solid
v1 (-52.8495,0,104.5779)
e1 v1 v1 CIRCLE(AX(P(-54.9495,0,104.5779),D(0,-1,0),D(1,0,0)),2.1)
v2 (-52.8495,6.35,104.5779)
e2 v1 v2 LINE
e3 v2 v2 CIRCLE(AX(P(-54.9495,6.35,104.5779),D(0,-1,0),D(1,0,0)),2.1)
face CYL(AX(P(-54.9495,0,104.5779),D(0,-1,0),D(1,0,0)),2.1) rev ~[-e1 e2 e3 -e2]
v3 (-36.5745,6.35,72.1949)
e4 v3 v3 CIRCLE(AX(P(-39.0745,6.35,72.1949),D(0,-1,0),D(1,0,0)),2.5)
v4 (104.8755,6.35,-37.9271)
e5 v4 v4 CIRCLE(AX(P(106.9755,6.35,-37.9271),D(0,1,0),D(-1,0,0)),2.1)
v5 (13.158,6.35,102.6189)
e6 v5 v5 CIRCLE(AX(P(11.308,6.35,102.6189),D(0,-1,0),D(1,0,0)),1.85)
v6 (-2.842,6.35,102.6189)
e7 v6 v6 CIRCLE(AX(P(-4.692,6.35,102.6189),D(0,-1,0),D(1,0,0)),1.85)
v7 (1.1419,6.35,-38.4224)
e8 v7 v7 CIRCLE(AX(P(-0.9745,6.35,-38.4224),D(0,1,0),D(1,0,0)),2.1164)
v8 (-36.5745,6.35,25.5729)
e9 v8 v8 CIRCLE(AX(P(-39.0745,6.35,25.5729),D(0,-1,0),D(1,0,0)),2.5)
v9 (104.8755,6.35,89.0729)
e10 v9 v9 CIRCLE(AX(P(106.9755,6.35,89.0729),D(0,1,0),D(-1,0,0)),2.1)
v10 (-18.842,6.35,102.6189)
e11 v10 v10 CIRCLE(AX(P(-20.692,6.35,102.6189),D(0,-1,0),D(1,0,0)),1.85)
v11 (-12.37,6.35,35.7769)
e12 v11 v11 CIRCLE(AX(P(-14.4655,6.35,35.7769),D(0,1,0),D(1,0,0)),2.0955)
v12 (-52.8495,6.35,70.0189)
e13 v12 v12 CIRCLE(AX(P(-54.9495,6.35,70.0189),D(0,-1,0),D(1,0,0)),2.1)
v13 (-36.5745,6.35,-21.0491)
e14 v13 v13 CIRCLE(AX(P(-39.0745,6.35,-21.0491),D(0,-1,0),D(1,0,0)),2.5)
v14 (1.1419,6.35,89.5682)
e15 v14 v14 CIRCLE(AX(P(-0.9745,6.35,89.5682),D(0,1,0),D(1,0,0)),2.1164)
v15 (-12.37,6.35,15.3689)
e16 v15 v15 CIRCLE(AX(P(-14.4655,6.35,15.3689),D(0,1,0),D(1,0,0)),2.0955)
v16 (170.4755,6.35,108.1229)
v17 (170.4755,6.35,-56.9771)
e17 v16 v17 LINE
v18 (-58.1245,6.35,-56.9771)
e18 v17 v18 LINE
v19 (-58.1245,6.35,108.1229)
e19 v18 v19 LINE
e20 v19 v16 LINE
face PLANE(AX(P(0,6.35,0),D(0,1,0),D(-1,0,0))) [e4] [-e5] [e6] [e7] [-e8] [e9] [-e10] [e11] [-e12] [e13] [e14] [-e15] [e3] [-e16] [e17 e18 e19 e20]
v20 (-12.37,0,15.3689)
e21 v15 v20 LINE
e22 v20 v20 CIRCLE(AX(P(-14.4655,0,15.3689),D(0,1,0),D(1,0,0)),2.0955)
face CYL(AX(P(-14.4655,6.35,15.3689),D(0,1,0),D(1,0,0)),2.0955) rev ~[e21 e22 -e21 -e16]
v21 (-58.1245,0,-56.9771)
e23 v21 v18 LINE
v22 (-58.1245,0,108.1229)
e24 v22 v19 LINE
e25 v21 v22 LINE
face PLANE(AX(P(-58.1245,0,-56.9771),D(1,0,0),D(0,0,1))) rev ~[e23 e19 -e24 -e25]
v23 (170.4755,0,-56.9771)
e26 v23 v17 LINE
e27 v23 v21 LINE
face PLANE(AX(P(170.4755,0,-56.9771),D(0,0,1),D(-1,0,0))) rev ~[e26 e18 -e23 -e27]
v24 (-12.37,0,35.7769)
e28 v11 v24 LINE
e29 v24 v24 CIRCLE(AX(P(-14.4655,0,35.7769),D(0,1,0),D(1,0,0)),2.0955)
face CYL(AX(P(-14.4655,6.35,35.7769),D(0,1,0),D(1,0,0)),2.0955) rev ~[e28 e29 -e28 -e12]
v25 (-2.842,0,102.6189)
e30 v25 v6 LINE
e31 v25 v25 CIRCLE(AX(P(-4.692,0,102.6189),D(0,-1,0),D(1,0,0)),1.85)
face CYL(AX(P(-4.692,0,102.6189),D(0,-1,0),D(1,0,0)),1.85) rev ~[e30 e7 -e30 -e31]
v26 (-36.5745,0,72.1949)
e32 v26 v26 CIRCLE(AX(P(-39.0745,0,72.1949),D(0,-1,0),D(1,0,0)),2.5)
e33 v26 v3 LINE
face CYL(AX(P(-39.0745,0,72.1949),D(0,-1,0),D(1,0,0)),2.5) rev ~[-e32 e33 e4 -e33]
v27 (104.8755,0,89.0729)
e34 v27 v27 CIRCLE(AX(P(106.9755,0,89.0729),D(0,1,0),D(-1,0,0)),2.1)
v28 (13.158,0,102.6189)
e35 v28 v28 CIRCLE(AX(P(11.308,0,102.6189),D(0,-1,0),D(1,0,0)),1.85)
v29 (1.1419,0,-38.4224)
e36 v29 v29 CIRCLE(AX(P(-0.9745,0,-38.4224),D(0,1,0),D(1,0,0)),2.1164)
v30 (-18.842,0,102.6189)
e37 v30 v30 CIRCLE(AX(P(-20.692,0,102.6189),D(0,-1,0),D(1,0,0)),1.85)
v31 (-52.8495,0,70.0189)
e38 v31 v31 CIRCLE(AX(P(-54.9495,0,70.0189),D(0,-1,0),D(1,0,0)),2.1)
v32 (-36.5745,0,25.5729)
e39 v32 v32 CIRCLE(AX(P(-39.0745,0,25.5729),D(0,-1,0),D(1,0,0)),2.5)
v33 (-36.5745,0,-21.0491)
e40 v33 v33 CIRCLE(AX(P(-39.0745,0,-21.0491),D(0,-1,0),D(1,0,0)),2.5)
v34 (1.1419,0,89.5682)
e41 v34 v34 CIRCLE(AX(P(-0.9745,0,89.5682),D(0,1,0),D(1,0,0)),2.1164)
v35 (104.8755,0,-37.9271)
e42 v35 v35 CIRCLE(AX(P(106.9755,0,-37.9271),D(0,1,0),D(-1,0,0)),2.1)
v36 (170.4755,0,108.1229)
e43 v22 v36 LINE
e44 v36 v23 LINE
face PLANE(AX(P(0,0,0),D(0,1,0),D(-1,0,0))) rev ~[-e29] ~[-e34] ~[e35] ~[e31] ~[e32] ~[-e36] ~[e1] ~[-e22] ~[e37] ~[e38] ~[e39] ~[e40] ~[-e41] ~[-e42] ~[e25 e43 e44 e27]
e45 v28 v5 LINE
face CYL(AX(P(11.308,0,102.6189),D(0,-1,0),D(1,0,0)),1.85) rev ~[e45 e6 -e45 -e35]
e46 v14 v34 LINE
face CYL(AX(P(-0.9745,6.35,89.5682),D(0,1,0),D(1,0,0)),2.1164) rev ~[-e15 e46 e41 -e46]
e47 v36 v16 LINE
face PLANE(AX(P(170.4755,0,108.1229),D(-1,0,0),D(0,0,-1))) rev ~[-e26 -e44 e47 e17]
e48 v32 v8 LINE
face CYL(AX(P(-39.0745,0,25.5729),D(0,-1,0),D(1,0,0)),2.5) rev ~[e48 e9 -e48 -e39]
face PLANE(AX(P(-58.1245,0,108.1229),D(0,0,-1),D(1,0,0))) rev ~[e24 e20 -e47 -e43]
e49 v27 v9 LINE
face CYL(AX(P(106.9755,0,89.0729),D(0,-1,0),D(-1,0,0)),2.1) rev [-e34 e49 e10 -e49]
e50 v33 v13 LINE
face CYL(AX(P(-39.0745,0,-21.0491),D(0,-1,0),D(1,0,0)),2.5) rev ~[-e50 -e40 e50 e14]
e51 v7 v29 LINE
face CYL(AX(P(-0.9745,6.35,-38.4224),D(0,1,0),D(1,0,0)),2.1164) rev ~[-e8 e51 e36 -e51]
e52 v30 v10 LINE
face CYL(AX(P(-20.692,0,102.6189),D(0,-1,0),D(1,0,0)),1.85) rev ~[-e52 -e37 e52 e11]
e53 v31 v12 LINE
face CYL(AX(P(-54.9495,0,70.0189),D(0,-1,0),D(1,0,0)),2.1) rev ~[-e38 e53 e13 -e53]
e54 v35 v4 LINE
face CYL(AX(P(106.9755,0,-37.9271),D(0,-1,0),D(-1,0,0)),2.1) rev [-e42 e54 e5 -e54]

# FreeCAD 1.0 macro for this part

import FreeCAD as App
import Part
import Sketcher
Q = App.Units.Quantity


def add_polygon(sketch, points):
    """Adds a closed chain of lines whose ends are joined by coincident constraints."""
    first, n = sketch.GeometryCount, len(points)
    for a, b in zip(points, points[1:] + points[:1]):
        sketch.addGeometry(Part.LineSegment(App.Vector(*a, 0), App.Vector(*b, 0)), False)
    for i in range(n):
        sketch.addConstraint(Sketcher.Constraint("Coincident", first + i, 2, first + (i + 1) % n, 1))

doc = App.newDocument("Part")
body = doc.addObject("PartDesign::Body", "Body")

# Sketch on XZ plane
sketch1 = doc.addObject("Sketcher::SketchObject", "Sketch")
body.addObject(sketch1)
sketch1.AttachmentSupport = (doc.XZ_Plane, [""])
sketch1.MapMode = "FlatFace"
add_polygon(sketch1, [(-58.1245, -56.9771), (-58.1245, 108.1229), (170.4755, 108.1229), (170.4755, -56.9771)])  # lines 0-3
sketch1.addGeometry(Part.Circle(App.Vector(106.9755, -37.9271, 0), App.Vector(0, 0, 1), 2.1), False)  # 4
sketch1.addGeometry(Part.Circle(App.Vector(106.9755, 89.0729, 0), App.Vector(0, 0, 1), 2.1), False)  # 5
sketch1.addConstraint(Sketcher.Constraint("Vertical", 0))
sketch1.addConstraint(Sketcher.Constraint("Horizontal", 1))
sketch1.addConstraint(Sketcher.Constraint("Vertical", 2))
sketch1.addConstraint(Sketcher.Constraint("Horizontal", 3))
sketch1.addConstraint(Sketcher.Constraint("Equal", 4, 5))
sketch1.addConstraint(Sketcher.Constraint("Vertical", 4, 3, 5, 3))
sketch1.addConstraint(Sketcher.Constraint("DistanceX", 1, 1, 1, 2, Q("9 in")))
sketch1.addConstraint(Sketcher.Constraint("DistanceY", 0, 1, 0, 2, Q("6.5 in")))
sketch1.addConstraint(Sketcher.Constraint("DistanceY", 4, 3, 5, 3, Q("5 in")))
sketch1.addConstraint(Sketcher.Constraint("DistanceX", 0, 2, 5, 3, Q("6.5 in")))
sketch1.addConstraint(Sketcher.Constraint("Diameter", 4, Q("4.2 mm")))
sketch1.addConstraint(Sketcher.Constraint("DistanceY", 5, 3, 0, 2, Q("0.75 in")))
sketch1.addConstraint(Sketcher.Constraint("DistanceY", 4, 3, -1, 1, Q("1.4932 in")))
sketch1.addConstraint(Sketcher.Constraint("DistanceX", -1, 1, 4, 3, Q("106.9755 mm")))
pad1 = doc.addObject("PartDesign::Pad", "Pad")
body.addObject(pad1)
pad1.Profile = sketch1
pad1.Length = Q("0.25 in")
pad1.Reversed = True

# Sketch on XZ plane
sketch2 = doc.addObject("Sketcher::SketchObject", "Sketch001")
body.addObject(sketch2)
sketch2.AttachmentSupport = (doc.XZ_Plane, [""])
sketch2.MapMode = "FlatFace"
sketch2.AttachmentOffset = App.Placement(App.Vector(0, 0, -0.25 * 25.4), App.Rotation())
sketch2.addGeometry(Part.Circle(App.Vector(-0.9745, 89.5682, 0), App.Vector(0, 0, 1), 2.1164), False)
sketch2.addGeometry(Part.Circle(App.Vector(-0.9745, -38.4224, 0), App.Vector(0, 0, 1), 2.1164), False)
sketch2.addConstraint(Sketcher.Constraint("Equal", 0, 1))
sketch2.addConstraint(Sketcher.Constraint("Vertical", 0, 3, 1, 3))
sketch2.addConstraint(Sketcher.Constraint("DistanceY", 1, 3, 0, 3, Q("5.039 in")))
sketch2.addConstraint(Sketcher.Constraint("Diameter", 0, Q("4.2328 mm")))
sketch2.addConstraint(Sketcher.Constraint("DistanceY", -1, 1, 0, 3, Q("3.5263 in")))
sketch2.addConstraint(Sketcher.Constraint("DistanceX", 0, 3, -1, 1, Q("0.9745 mm")))
pocket1 = doc.addObject("PartDesign::Pocket", "Pocket")
body.addObject(pocket1)
pocket1.Profile = sketch2
pocket1.Type = "ThroughAll"
pocket1.Reversed = True

# Sketch on XZ plane
sketch3 = doc.addObject("Sketcher::SketchObject", "Sketch002")
body.addObject(sketch3)
sketch3.AttachmentSupport = (doc.XZ_Plane, [""])
sketch3.MapMode = "FlatFace"
sketch3.addGeometry(Part.Circle(App.Vector(-39.0745, -21.0491, 0), App.Vector(0, 0, 1), 2.5), False)
sketch3.addGeometry(Part.Circle(App.Vector(-39.0745, 72.1949, 0), App.Vector(0, 0, 1), 2.5), False)
sketch3.addGeometry(Part.Circle(App.Vector(-39.0745, 25.5729, 0), App.Vector(0, 0, 1), 2.5), False)
sketch3.addConstraint(Sketcher.Constraint("Equal", 0, 1))
sketch3.addConstraint(Sketcher.Constraint("Equal", 1, 2))
sketch3.addConstraint(Sketcher.Constraint("Vertical", 0, 3, 1, 3))
sketch3.addConstraint(Sketcher.Constraint("Vertical", 1, 3, 2, 3))
sketch3.addConstraint(Sketcher.Constraint("Diameter", 0, Q("5 mm")))
sketch3.addConstraint(Sketcher.Constraint("DistanceY", 0, 3, -1, 1, Q("0.8287 in")))
sketch3.addConstraint(Sketcher.Constraint("DistanceY", -1, 1, 2, 3, Q("1.0068 in")))
sketch3.addConstraint(Sketcher.Constraint("DistanceY", 2, 3, 1, 3, Q("1.8355 in")))
sketch3.addConstraint(Sketcher.Constraint("DistanceX", 0, 3, -1, 1, Q("39.0745 mm")))
pocket2 = doc.addObject("PartDesign::Pocket", "Pocket001")
body.addObject(pocket2)
pocket2.Profile = sketch3
pocket2.Type = "ThroughAll"

# Sketch on XZ plane
sketch4 = doc.addObject("Sketcher::SketchObject", "Sketch003")
body.addObject(sketch4)
sketch4.AttachmentSupport = (doc.XZ_Plane, [""])
sketch4.MapMode = "FlatFace"
sketch4.AttachmentOffset = App.Placement(App.Vector(0, 0, -0.25 * 25.4), App.Rotation())
sketch4.addGeometry(Part.Circle(App.Vector(-14.4655, 35.7769, 0), App.Vector(0, 0, 1), 2.0955), False)
sketch4.addGeometry(Part.Circle(App.Vector(-14.4655, 15.3689, 0), App.Vector(0, 0, 1), 2.0955), False)
sketch4.addConstraint(Sketcher.Constraint("Equal", 0, 1))
sketch4.addConstraint(Sketcher.Constraint("Vertical", 0, 3, 1, 3))
sketch4.addConstraint(Sketcher.Constraint("Diameter", 0, Q("0.165 in")))
sketch4.addConstraint(Sketcher.Constraint("DistanceX", 0, 3, -1, 1, Q("0.5695 in")))
sketch4.addConstraint(Sketcher.Constraint("DistanceY", -1, 1, 0, 3, Q("35.777 mm")))
sketch4.addConstraint(Sketcher.Constraint("DistanceY", -1, 1, 1, 3, Q("15.369 mm")))
pocket3 = doc.addObject("PartDesign::Pocket", "Pocket002")
body.addObject(pocket3)
pocket3.Profile = sketch4
pocket3.Type = "ThroughAll"
pocket3.Reversed = True

# Sketch on XZ plane
sketch5 = doc.addObject("Sketcher::SketchObject", "Sketch004")
body.addObject(sketch5)
sketch5.AttachmentSupport = (doc.XZ_Plane, [""])
sketch5.MapMode = "FlatFace"
sketch5.addGeometry(Part.Circle(App.Vector(-20.692, 102.6189, 0), App.Vector(0, 0, 1), 1.85), False)
sketch5.addGeometry(Part.Circle(App.Vector(11.308, 102.6189, 0), App.Vector(0, 0, 1), 1.85), False)
sketch5.addGeometry(Part.Circle(App.Vector(-4.692, 102.6189, 0), App.Vector(0, 0, 1), 1.85), False)
sketch5.addConstraint(Sketcher.Constraint("Equal", 0, 1))
sketch5.addConstraint(Sketcher.Constraint("Equal", 1, 2))
sketch5.addConstraint(Sketcher.Constraint("Horizontal", 0, 3, 1, 3))
sketch5.addConstraint(Sketcher.Constraint("Horizontal", 1, 3, 2, 3))
sketch5.addConstraint(Sketcher.Constraint("Diameter", 0, Q("3.7 mm")))
sketch5.addConstraint(Sketcher.Constraint("DistanceX", -1, 1, 1, 3, Q("0.4452 in")))
sketch5.addConstraint(Sketcher.Constraint("DistanceX", 0, 3, -1, 1, Q("20.692 mm")))
sketch5.addConstraint(Sketcher.Constraint("DistanceY", -1, 1, 0, 3, Q("102.619 mm")))
sketch5.addConstraint(Sketcher.Constraint("DistanceX", 2, 3, -1, 1, Q("4.692 mm")))
pocket4 = doc.addObject("PartDesign::Pocket", "Pocket003")
body.addObject(pocket4)
pocket4.Profile = sketch5
pocket4.Type = "ThroughAll"

# Sketch on XZ plane
sketch6 = doc.addObject("Sketcher::SketchObject", "Sketch005")
body.addObject(sketch6)
sketch6.AttachmentSupport = (doc.XZ_Plane, [""])
sketch6.MapMode = "FlatFace"
sketch6.addGeometry(Part.Circle(App.Vector(-54.9495, 104.5779, 0), App.Vector(0, 0, 1), 2.1), False)
sketch6.addGeometry(Part.Circle(App.Vector(-54.9495, 70.0189, 0), App.Vector(0, 0, 1), 2.1), False)
sketch6.addConstraint(Sketcher.Constraint("Equal", 0, 1))
sketch6.addConstraint(Sketcher.Constraint("Vertical", 0, 3, 1, 3))
sketch6.addConstraint(Sketcher.Constraint("Diameter", 0, Q("4.2 mm")))
sketch6.addConstraint(Sketcher.Constraint("DistanceY", 1, 3, 0, 3, Q("1.3606 in")))
sketch6.addConstraint(Sketcher.Constraint("DistanceX", 0, 3, -1, 1, Q("54.9495 mm")))
sketch6.addConstraint(Sketcher.Constraint("DistanceY", -1, 1, 0, 3, Q("104.578 mm")))
pocket5 = doc.addObject("PartDesign::Pocket", "Pocket004")
body.addObject(pocket5)
pocket5.Profile = sketch6
pocket5.Type = "ThroughAll"

doc.recompute()
